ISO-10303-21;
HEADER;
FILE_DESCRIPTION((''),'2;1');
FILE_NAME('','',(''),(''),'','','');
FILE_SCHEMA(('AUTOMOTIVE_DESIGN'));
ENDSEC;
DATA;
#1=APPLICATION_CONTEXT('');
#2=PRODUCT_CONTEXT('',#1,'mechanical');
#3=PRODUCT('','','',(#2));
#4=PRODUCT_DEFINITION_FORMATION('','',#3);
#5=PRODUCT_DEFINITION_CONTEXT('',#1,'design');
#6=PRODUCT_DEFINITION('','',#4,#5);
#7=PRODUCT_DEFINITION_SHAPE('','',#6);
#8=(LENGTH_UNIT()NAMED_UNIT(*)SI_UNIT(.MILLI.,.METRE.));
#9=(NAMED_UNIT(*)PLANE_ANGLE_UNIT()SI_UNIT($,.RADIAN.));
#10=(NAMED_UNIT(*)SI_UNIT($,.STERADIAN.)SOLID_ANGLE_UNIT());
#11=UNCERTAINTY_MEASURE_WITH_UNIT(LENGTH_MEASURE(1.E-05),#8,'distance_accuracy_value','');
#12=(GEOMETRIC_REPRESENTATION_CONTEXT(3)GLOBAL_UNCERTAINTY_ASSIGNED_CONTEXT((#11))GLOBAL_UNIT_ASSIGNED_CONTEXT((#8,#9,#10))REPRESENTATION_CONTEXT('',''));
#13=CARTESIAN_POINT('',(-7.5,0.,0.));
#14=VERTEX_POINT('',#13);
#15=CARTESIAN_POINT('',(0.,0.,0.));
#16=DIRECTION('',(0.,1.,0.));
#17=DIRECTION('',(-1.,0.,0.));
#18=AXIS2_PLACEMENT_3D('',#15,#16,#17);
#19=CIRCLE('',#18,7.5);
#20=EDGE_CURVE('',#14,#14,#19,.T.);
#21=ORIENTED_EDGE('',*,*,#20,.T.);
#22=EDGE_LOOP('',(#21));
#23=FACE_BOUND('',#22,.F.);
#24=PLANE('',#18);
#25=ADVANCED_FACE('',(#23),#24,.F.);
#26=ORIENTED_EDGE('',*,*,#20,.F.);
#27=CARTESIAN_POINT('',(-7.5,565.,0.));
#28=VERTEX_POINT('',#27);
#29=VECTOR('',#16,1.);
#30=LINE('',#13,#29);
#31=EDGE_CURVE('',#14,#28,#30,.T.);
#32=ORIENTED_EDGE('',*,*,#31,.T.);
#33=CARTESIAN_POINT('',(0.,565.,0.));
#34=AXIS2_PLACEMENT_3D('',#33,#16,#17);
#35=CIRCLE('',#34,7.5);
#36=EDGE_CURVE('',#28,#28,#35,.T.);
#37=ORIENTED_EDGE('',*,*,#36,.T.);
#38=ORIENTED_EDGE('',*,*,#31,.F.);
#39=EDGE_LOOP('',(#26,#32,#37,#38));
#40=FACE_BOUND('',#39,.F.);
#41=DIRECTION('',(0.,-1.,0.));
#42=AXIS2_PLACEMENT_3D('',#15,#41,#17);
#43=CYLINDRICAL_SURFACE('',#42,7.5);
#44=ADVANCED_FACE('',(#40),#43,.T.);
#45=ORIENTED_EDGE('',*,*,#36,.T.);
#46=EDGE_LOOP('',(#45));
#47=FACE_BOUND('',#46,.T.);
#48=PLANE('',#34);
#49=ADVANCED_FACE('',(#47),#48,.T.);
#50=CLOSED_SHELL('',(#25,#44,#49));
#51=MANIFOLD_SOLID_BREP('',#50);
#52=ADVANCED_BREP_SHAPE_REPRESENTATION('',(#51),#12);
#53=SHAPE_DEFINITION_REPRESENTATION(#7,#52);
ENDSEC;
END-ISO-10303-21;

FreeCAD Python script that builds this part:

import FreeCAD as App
import Part
import Sketcher
from FreeCAD import Vector

doc = App.newDocument("Part")
body = doc.addObject("PartDesign::Body", "Body")

# Sketch on XZ plane
sketch1 = body.newObject("Sketcher::SketchObject", "Sketch")
sketch1.AttachmentSupport = (doc.getObject("XZ_Plane"), [""])
sketch1.MapMode = "FlatFace"
sketch1.addGeometry(Part.Circle(Vector(0, 0, 0), Vector(0, 0, 1), 8), False)
sketch1.addConstraint([
    Sketcher.Constraint("Coincident", 0, 3, -1, 1),
    Sketcher.Constraint("Diameter", 0, 15.0),
])
pad1 = body.newObject("PartDesign::Pad", "Pad")
pad1.Profile = sketch1
pad1.Length = 565
pad1.Reversed = True

doc.recompute()
